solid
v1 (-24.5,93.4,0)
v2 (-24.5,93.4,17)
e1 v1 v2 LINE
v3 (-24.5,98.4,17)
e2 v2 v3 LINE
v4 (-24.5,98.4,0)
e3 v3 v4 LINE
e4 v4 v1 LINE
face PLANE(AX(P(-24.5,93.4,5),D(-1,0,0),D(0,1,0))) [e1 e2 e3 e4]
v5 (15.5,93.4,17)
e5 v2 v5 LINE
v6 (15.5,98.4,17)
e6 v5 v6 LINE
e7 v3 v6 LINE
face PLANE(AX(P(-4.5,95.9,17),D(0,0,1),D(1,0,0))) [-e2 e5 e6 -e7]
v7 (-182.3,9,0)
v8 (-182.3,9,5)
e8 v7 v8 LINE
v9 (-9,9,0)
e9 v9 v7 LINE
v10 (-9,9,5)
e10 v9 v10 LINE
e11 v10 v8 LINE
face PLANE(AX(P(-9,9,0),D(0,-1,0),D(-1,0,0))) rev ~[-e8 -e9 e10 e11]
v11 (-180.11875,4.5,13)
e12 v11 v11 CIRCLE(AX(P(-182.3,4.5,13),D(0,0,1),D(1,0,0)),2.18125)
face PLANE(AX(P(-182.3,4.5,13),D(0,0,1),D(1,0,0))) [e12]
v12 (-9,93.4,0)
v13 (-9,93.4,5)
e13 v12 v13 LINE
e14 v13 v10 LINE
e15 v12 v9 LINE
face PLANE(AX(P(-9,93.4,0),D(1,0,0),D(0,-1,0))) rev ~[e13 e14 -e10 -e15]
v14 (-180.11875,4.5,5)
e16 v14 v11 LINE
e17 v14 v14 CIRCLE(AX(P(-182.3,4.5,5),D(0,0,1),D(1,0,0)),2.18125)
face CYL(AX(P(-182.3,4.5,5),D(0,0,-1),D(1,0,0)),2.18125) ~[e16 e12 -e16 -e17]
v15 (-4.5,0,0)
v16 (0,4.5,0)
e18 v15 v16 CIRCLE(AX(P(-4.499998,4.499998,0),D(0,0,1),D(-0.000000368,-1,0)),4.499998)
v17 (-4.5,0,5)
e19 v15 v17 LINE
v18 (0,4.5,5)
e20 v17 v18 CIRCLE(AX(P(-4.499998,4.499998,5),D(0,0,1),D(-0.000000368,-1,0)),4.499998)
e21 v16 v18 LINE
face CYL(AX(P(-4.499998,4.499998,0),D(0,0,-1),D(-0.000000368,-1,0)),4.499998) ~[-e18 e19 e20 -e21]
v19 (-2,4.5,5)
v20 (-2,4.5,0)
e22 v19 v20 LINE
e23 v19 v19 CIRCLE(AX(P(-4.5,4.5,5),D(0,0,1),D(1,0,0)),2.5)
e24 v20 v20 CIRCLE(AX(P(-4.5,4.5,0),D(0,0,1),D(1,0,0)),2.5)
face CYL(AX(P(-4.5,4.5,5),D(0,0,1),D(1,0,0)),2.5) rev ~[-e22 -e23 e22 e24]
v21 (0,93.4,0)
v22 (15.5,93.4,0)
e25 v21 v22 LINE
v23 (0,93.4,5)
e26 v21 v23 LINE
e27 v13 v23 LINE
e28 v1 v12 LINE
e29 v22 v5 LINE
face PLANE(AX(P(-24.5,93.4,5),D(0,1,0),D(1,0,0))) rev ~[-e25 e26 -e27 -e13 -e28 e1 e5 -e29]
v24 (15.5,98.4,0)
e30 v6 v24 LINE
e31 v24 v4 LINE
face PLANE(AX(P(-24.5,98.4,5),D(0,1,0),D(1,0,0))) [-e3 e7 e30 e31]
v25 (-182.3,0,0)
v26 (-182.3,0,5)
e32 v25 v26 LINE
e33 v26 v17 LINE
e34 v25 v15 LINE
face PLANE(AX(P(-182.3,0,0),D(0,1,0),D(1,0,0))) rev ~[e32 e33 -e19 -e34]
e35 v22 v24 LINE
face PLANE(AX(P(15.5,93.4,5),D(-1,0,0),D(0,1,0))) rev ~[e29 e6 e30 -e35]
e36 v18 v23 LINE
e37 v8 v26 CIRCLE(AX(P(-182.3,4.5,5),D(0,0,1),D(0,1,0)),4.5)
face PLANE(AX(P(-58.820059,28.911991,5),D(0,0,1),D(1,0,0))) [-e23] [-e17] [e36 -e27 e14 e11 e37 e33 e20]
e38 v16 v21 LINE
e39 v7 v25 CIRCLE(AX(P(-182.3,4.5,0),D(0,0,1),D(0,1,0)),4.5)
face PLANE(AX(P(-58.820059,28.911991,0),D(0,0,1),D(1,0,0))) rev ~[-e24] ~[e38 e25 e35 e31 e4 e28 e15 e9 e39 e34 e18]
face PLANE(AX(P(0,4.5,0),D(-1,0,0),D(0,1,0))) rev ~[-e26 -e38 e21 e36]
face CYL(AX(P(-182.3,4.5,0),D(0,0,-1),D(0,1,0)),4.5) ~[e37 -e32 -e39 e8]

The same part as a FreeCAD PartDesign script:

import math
import FreeCAD as App
import Part
import Sketcher

V = App.Vector

doc = App.newDocument("Part")
body = doc.addObject("PartDesign::Body", "Body")

# Sketch on XY plane
sketch1 = doc.addObject("Sketcher::SketchObject", "Sketch")
body.addObject(sketch1)
sketch1.AttachmentSupport = (doc.XY_Plane, [""])
sketch1.MapMode = "FlatFace"
sketch1.addGeometry([
    Part.LineSegment(V(15.5, 98.4, 0), V(-24.5, 98.4, 0)),  # 0
    Part.LineSegment(V(-24.5, 98.4, 0), V(-24.5, 93.4, 0)),  # 1
    Part.LineSegment(V(-24.5, 93.4, 0), V(-9, 93.4, 0)),  # 2
    Part.LineSegment(V(-9, 93.4, 0), V(-9, 9, 0)),  # 3
    Part.LineSegment(V(-9, 9, 0), V(-182.3, 9, 0)),  # 4
    Part.ArcOfCircle(Part.Circle(V(-182.3, 4.5, 0), V(0, 0, 1), 4.5), math.radians(90), math.radians(270)),  # 5
    Part.LineSegment(V(-182.3, 0, 0), V(-4.5, 0, 0)),  # 6
    Part.ArcOfCircle(Part.Circle(V(-4.5, 4.5, 0), V(0, 0, 1), 4.5), math.radians(-90), math.radians(0)),  # 7
    Part.LineSegment(V(0, 4.5, 0), V(0, 93.4, 0)),  # 8
    Part.LineSegment(V(0, 93.4, 0), V(15.5, 93.4, 0)),  # 9
    Part.LineSegment(V(15.5, 93.4, 0), V(15.5, 98.4, 0)),  # 10
], False)
sketch1.addConstraint([
    Sketcher.Constraint("Coincident", 0, 2, 1, 1),
    Sketcher.Constraint("Coincident", 1, 2, 2, 1),
    Sketcher.Constraint("Coincident", 2, 2, 3, 1),
    Sketcher.Constraint("Coincident", 3, 2, 4, 1),
    Sketcher.Constraint("Tangent", 4, 2, 5, 1),
    Sketcher.Constraint("Tangent", 5, 2, 6, 1),
    Sketcher.Constraint("Tangent", 6, 2, 7, 1),
    Sketcher.Constraint("Tangent", 7, 2, 8, 1),
    Sketcher.Constraint("Coincident", 8, 2, 9, 1),
    Sketcher.Constraint("Coincident", 9, 2, 10, 1),
    Sketcher.Constraint("Coincident", 10, 2, 0, 1),
    Sketcher.Constraint("Horizontal", 0),
    Sketcher.Constraint("Vertical", 1),
    Sketcher.Constraint("Horizontal", 2),
    Sketcher.Constraint("Vertical", 3),
    Sketcher.Constraint("Horizontal", 4),
    Sketcher.Constraint("Horizontal", 6),
    Sketcher.Constraint("Vertical", 8),
    Sketcher.Constraint("Horizontal", 9),
    Sketcher.Constraint("Vertical", 10),
    Sketcher.Constraint("Equal", 5, 7),
    Sketcher.Constraint("PointOnObject", 5, 2, -1),
    Sketcher.Constraint("PointOnObject", 7, 2, -2),
    Sketcher.Constraint("Horizontal", 2, 2, 8, 2),
    Sketcher.Constraint("Equal", 2, 9),
    Sketcher.Constraint("Radius", 5, 4.5),
    Sketcher.Constraint("DistanceX", 0, 2, 0, 1, 40.0),
    Sketcher.Constraint("DistanceY", 1, 2, 1, 1, 5.0),
    Sketcher.Constraint("DistanceX", 2, 1, 2, 2, 15.5),
    Sketcher.Constraint("DistanceX", 4, 2, 4, 1, 173.3),
    Sketcher.Constraint("DistanceY", 3, 2, 3, 1, 84.4),
])
pad1 = doc.addObject("PartDesign::Pad", "Pad")
body.addObject(pad1)
pad1.Profile = sketch1
pad1.Length = 5

# Sketch on XY plane
sketch2 = doc.addObject("Sketcher::SketchObject", "Sketch001")
body.addObject(sketch2)
sketch2.AttachmentSupport = (doc.XY_Plane, [""])
sketch2.MapMode = "FlatFace"
sketch2.AttachmentOffset = App.Placement(V(0, 0, 5), App.Rotation())
sketch2.addGeometry([
    Part.LineSegment(V(-24, 98, 0), V(-24, 93, 0)),
    Part.LineSegment(V(-24, 93, 0), V(16, 93, 0)),
    Part.LineSegment(V(16, 93, 0), V(16, 98, 0)),
    Part.LineSegment(V(16, 98, 0), V(-24, 98, 0)),
], False)
sketch2.addConstraint([
    Sketcher.Constraint("Coincident", 0, 2, 1, 1),
    Sketcher.Constraint("Coincident", 1, 2, 2, 1),
    Sketcher.Constraint("Coincident", 2, 2, 3, 1),
    Sketcher.Constraint("Coincident", 3, 2, 0, 1),
    Sketcher.Constraint("Vertical", 0),
    Sketcher.Constraint("Horizontal", 1),
    Sketcher.Constraint("Vertical", 2),
    Sketcher.Constraint("Horizontal", 3),
    Sketcher.Constraint("DistanceX", 1, 1, 1, 2, 40.0),
    Sketcher.Constraint("DistanceY", 0, 2, 0, 1, 5.0),
    Sketcher.Constraint("DistanceX", 0, 2, -1, 1, 24.5),
    Sketcher.Constraint("DistanceY", -1, 1, 0, 2, 93.4),
])
pad2 = doc.addObject("PartDesign::Pad", "Pad001")
body.addObject(pad2)
pad2.Profile = sketch2
pad2.Length = 12

# Sketch on XY plane
sketch3 = doc.addObject("Sketcher::SketchObject", "Sketch002")
body.addObject(sketch3)
sketch3.AttachmentSupport = (doc.XY_Plane, [""])
sketch3.MapMode = "FlatFace"
sketch3.AttachmentOffset = App.Placement(V(0, 0, 5), App.Rotation())
sketch3.addGeometry(Part.Circle(V(-182.3, 4.5, 0), V(0, 0, 1), 2.2), False)
sketch3.addConstraint([
    Sketcher.Constraint("Diameter", 0, 4.3625),
    Sketcher.Constraint("DistanceX", 0, 3, -1, 1, 182.3),
    Sketcher.Constraint("DistanceY", -1, 1, 0, 3, 4.5),
])
pad3 = doc.addObject("PartDesign::Pad", "Pad002")
body.addObject(pad3)
pad3.Profile = sketch3
pad3.Length = 8

# Sketch on XY plane
sketch4 = doc.addObject("Sketcher::SketchObject", "Sketch003")
body.addObject(sketch4)
sketch4.AttachmentSupport = (doc.XY_Plane, [""])
sketch4.MapMode = "FlatFace"
sketch4.AttachmentOffset = App.Placement(V(0, 0, 5), App.Rotation())
sketch4.addGeometry(Part.Circle(V(-4.5, 4.5, 0), V(0, 0, 1), 2.5), False)
sketch4.addConstraint([
    Sketcher.Constraint("Diameter", 0, 5.0),
    Sketcher.Constraint("DistanceX", 0, 3, -1, 1, 4.5),
    Sketcher.Constraint("DistanceY", -1, 1, 0, 3, 4.5),
])
pocket1 = doc.addObject("PartDesign::Pocket", "Pocket")
body.addObject(pocket1)
pocket1.Profile = sketch4
pocket1.Length = 25

doc.recompute()
